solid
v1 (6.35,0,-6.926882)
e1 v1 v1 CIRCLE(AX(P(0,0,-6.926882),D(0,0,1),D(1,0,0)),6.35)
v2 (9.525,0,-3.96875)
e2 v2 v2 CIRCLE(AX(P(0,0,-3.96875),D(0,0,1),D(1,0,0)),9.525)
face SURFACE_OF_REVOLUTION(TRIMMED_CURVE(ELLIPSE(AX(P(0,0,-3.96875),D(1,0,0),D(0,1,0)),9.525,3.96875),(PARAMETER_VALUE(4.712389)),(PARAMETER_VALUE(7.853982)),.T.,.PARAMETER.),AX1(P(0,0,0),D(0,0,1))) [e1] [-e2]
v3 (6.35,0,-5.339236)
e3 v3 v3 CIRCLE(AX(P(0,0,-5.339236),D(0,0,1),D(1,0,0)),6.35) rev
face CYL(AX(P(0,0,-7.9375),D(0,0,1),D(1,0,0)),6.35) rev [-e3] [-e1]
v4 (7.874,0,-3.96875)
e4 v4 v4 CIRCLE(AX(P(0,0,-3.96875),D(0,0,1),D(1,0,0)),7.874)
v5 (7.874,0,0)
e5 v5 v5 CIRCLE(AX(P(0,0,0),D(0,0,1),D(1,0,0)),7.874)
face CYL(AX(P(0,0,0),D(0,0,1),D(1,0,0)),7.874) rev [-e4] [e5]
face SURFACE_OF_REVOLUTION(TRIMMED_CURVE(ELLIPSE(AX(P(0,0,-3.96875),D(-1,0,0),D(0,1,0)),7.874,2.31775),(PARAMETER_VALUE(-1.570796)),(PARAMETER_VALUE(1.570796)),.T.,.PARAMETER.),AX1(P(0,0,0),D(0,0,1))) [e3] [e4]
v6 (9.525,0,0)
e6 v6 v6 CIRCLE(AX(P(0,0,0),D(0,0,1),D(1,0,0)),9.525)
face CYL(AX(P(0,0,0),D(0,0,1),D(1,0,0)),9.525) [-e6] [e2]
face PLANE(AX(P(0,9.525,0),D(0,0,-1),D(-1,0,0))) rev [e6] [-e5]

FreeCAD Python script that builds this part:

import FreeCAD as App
import Part
import Sketcher
Q = App.Units.Quantity

doc = App.newDocument("Part")
params = doc.addObject("Spreadsheet::Sheet", "Params")
for row, (alias, value) in enumerate([
    ("revolution_angle", "360 deg"),
    ("sketch2_diameter", "0.5 in"),
], start=1):
    params.set(f"A{row}", alias)
    params.set(f"B{row}", "=" + value)
    params.setAlias(f"B{row}", alias)

body = doc.addObject("PartDesign::Body", "Body")

# Sketch on YZ plane
sketch1 = body.newObject("Sketcher::SketchObject", "Sketch")
sketch1.AttachmentSupport = (doc.getObject("YZ_Plane"), [""])
sketch1.MapMode = "FlatFace"
sketch1.addGeometry(Part.LineSegment(App.Vector(9.525, -3.96875, 0), App.Vector(9.525, 0, 0)), False)
sketch1.addGeometry(Part.LineSegment(App.Vector(9.525, 0, 0), App.Vector(7.874, 0, 0)), False)
sketch1.addGeometry(Part.LineSegment(App.Vector(7.874, 0, 0), App.Vector(7.874, -3.96875, 0)), False)
sketch1.addGeometry(Part.BSplineCurve([App.Vector(0, -6.2865, 0), App.Vector(7.874, -6.2865, 0), App.Vector(7.874, -3.96875, 0)], [3, 3], [4.71238898, 6.283185307], False, 2, [1, 0.707106781, 1], False), False)
sketch1.addGeometry(Part.LineSegment(App.Vector(0, -6.2865, 0), App.Vector(0, -7.9375, 0)), False)
sketch1.addGeometry(Part.BSplineCurve([App.Vector(0, -7.9375, 0), App.Vector(9.525, -7.9375, 0), App.Vector(9.525, -3.96875, 0)], [3, 3], [4.71238898, 6.283185307], False, 2, [1, 0.707106781, 1], False), False)
sketch1.addConstraint(Sketcher.Constraint("Block", 3))
sketch1.addConstraint(Sketcher.Constraint("Block", 5))
sketch1.addConstraint(Sketcher.Constraint("Coincident", 0, 2, 1, 1))
sketch1.addConstraint(Sketcher.Constraint("Coincident", 1, 2, 2, 1))
sketch1.addConstraint(Sketcher.Constraint("Coincident", 2, 2, 3, 2))
sketch1.addConstraint(Sketcher.Constraint("Coincident", 3, 1, 4, 1))
sketch1.addConstraint(Sketcher.Constraint("Coincident", 4, 2, 5, 1))
sketch1.addConstraint(Sketcher.Constraint("Coincident", 5, 2, 0, 1))
sketch1.addConstraint(Sketcher.Constraint("Vertical", 0))
sketch1.addConstraint(Sketcher.Constraint("Horizontal", 1))
sketch1.addConstraint(Sketcher.Constraint("Vertical", 2))
sketch1.addConstraint(Sketcher.Constraint("PointOnObject", 0, 2, -1))
revolution = body.newObject("PartDesign::Revolution", "Revolution")
revolution.Profile = sketch1
revolution.ReferenceAxis = (sketch1, ["V_Axis"])
revolution.setExpression("Angle", "Params.revolution_angle")

# Sketch on XY plane
sketch2 = body.newObject("Sketcher::SketchObject", "Sketch001")
sketch2.AttachmentSupport = (doc.getObject("XY_Plane"), [""])
sketch2.MapMode = "FlatFace"
sketch2.addGeometry(Part.Circle(App.Vector(0, 0, 0), App.Vector(0, 0, 1), 6), False)
sketch2.addConstraint(Sketcher.Constraint("Coincident", 0, 3, -1, 1))
sketch2.addConstraint(Sketcher.Constraint("Diameter", 0, Q("0.5 in")))
sketch2.setExpression("Constraints[1]", "Params.sketch2_diameter")
pocket1 = body.newObject("PartDesign::Pocket", "Pocket")
pocket1.Profile = sketch2
pocket1.Type = "ThroughAll"
pocket1.Midplane = True

doc.recompute()
